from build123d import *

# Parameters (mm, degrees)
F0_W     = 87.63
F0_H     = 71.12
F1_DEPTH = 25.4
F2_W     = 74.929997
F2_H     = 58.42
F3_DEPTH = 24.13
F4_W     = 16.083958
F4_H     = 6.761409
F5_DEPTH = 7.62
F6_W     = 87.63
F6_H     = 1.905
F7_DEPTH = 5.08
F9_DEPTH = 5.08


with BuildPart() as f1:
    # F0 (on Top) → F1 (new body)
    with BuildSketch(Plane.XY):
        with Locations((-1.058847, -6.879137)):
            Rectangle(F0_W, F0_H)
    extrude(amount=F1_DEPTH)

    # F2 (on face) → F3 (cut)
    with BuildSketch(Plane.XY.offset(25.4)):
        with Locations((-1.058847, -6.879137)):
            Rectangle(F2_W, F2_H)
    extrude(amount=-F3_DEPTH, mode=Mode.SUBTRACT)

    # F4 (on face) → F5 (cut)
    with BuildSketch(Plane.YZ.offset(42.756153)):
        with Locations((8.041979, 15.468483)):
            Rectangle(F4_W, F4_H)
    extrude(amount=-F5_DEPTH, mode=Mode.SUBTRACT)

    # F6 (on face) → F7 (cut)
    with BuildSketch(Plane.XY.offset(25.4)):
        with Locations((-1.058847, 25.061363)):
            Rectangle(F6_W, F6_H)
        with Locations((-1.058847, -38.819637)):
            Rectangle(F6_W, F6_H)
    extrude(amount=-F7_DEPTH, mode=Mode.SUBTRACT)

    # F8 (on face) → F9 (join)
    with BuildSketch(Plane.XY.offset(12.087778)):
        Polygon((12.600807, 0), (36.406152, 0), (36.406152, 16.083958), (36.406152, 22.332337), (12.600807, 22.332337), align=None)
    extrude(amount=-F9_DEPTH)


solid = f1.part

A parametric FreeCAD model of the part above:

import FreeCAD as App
import Part
import Sketcher
Q = App.Units.Quantity


def add_polygon(sketch, points):
    """Adds a closed chain of lines whose ends are joined by coincident constraints."""
    first, n = sketch.GeometryCount, len(points)
    for a, b in zip(points, points[1:] + points[:1]):
        sketch.addGeometry(Part.LineSegment(App.Vector(*a, 0), App.Vector(*b, 0)), False)
    for i in range(n):
        sketch.addConstraint(Sketcher.Constraint("Coincident", first + i, 2, first + (i + 1) % n, 1))

doc = App.newDocument("Part")
body = doc.addObject("PartDesign::Body", "Body")

sketch1 = body.newObject("Sketcher::SketchObject", "Sketch")
sketch1.AttachmentSupport = (doc.getObject("XY_Plane"), [""])
sketch1.MapMode = "FlatFace"
add_polygon(sketch1, [(-44.873847, 28.680863), (-44.873847, -42.439137), (42.756153, -42.439137), (42.756153, 28.680863)])
sketch1.addConstraint([
    Sketcher.Constraint("Vertical", 0),
    Sketcher.Constraint("Horizontal", 1),
    Sketcher.Constraint("Vertical", 2),
    Sketcher.Constraint("Horizontal", 3),
    Sketcher.Constraint("DistanceY", 0, 2, 0, 1, Q("2.8 in")),
    Sketcher.Constraint("DistanceX", 1, 1, 1, 2, Q("3.45 in")),
    Sketcher.Constraint("DistanceX", 0, 2, -1, 1, Q("44.873847 mm")),
    Sketcher.Constraint("DistanceY", 0, 2, -1, 1, Q("42.439137 mm")),
])
pad1 = body.newObject("PartDesign::Pad", "Pad")
pad1.Profile = sketch1
pad1.Length = Q("1 in")

sketch2 = body.newObject("Sketcher::SketchObject", "Sketch001")
sketch2.AttachmentSupport = (doc.getObject("XY_Plane"), [""])
sketch2.MapMode = "FlatFace"
sketch2.AttachmentOffset = App.Placement(App.Vector(0, 0, 1 * 25.4), App.Rotation())
add_polygon(sketch2, [(-38.523846, 22.330863), (-38.523846, -36.089137), (36.406151, -36.089137), (36.406151, 22.330863)])
sketch2.addConstraint([
    Sketcher.Constraint("Vertical", 0),
    Sketcher.Constraint("Horizontal", 1),
    Sketcher.Constraint("Vertical", 2),
    Sketcher.Constraint("Horizontal", 3),
    Sketcher.Constraint("DistanceY", 0, 2, 0, 1, Q("2.3 in")),
    Sketcher.Constraint("DistanceX", 1, 1, 1, 2, Q("2.9499999 in")),
    Sketcher.Constraint("DistanceX", -1, 1, 1, 2, Q("36.406151 mm")),
    Sketcher.Constraint("DistanceY", 0, 2, -1, 1, Q("36.089137 mm")),
])
pocket1 = body.newObject("PartDesign::Pocket", "Pocket")
pocket1.Profile = sketch2
pocket1.Length = Q("0.95 in")

sketch3 = body.newObject("Sketcher::SketchObject", "Sketch002")
sketch3.AttachmentSupport = (doc.getObject("YZ_Plane"), [""])
sketch3.MapMode = "FlatFace"
sketch3.AttachmentOffset = App.Placement(App.Vector(0, 0, 42.756153), App.Rotation())
add_polygon(sketch3, [(0, 18.849187), (0, 12.087779), (16.083958, 12.087779), (16.083958, 18.849187)])
sketch3.addConstraint([
    Sketcher.Constraint("Vertical", 0),
    Sketcher.Constraint("Horizontal", 1),
    Sketcher.Constraint("Vertical", 2),
    Sketcher.Constraint("Horizontal", 3),
    Sketcher.Constraint("PointOnObject", 0, 2, -2),
    Sketcher.Constraint("DistanceY", 0, 2, 0, 1, Q("6.761409 mm")),
    Sketcher.Constraint("DistanceX", 1, 1, 1, 2, Q("16.083958 mm")),
    Sketcher.Constraint("DistanceY", -1, 1, 0, 2, Q("12.087779 mm")),
])
pocket2 = body.newObject("PartDesign::Pocket", "Pocket001")
pocket2.Profile = sketch3
pocket2.Length = Q("0.3 in")

sketch4 = body.newObject("Sketcher::SketchObject", "Sketch003")
sketch4.AttachmentSupport = (doc.getObject("XY_Plane"), [""])
sketch4.MapMode = "FlatFace"
sketch4.AttachmentOffset = App.Placement(App.Vector(0, 0, 1 * 25.4), App.Rotation())
add_polygon(sketch4, [(-44.873847, 26.013863), (-44.873847, 24.108863), (42.756153, 24.108863), (42.756153, 26.013863)])
add_polygon(sketch4, [(-44.873847, -37.867137), (-44.873847, -39.772137), (42.756153, -39.772137), (42.756153, -37.867137)])
sketch4.addConstraint([
    Sketcher.Constraint("Vertical", 0),
    Sketcher.Constraint("Horizontal", 1),
    Sketcher.Constraint("Vertical", 2),
    Sketcher.Constraint("Horizontal", 3),
    Sketcher.Constraint("Vertical", 4),
    Sketcher.Constraint("Horizontal", 5),
    Sketcher.Constraint("Vertical", 6),
    Sketcher.Constraint("Horizontal", 7),
    Sketcher.Constraint("Vertical", 3, 2, 4, 2),
    Sketcher.Constraint("Vertical", 2, 2, 5, 2),
    Sketcher.Constraint("Equal", 2, 4),
    Sketcher.Constraint("DistanceX", 1, 1, 1, 2, Q("3.45 in")),
    Sketcher.Constraint("DistanceY", 0, 2, 0, 1, Q("0.075 in")),
    Sketcher.Constraint("DistanceY", 4, 2, 3, 2, Q("2.59 in")),
    Sketcher.Constraint("DistanceX", 0, 2, -1, 1, Q("44.873847 mm")),
    Sketcher.Constraint("DistanceY", -1, 1, 0, 2, Q("24.108863 mm")),
])
pocket3 = body.newObject("PartDesign::Pocket", "Pocket002")
pocket3.Profile = sketch4
pocket3.Length = Q("0.2 in")

sketch5 = body.newObject("Sketcher::SketchObject", "Sketch004")
sketch5.AttachmentSupport = (doc.getObject("XY_Plane"), [""])
sketch5.MapMode = "FlatFace"
sketch5.AttachmentOffset = App.Placement(App.Vector(0, 0, 12.087778), App.Rotation())
add_polygon(sketch5, [(12.600807, 0), (36.406152, 0), (36.406152, 22.332337), (12.600807, 22.332337)])
sketch5.addConstraint([
    Sketcher.Constraint("Horizontal", 0),
    Sketcher.Constraint("Vertical", 1),
    Sketcher.Constraint("Horizontal", 2),
    Sketcher.Constraint("Vertical", 3),
    Sketcher.Constraint("PointOnObject", 0, 2, -1),
    Sketcher.Constraint("DistanceX", 0, 1, 0, 2, Q("23.805345 mm")),
    Sketcher.Constraint("DistanceY", 1, 1, 1, 2, Q("22.332337 mm")),
    Sketcher.Constraint("DistanceX", -1, 1, 0, 2, Q("36.406152 mm")),
])
pad2 = body.newObject("PartDesign::Pad", "Pad001")
pad2.Profile = sketch5
pad2.Length = Q("0.2 in")
pad2.Reversed = True

doc.recompute()
